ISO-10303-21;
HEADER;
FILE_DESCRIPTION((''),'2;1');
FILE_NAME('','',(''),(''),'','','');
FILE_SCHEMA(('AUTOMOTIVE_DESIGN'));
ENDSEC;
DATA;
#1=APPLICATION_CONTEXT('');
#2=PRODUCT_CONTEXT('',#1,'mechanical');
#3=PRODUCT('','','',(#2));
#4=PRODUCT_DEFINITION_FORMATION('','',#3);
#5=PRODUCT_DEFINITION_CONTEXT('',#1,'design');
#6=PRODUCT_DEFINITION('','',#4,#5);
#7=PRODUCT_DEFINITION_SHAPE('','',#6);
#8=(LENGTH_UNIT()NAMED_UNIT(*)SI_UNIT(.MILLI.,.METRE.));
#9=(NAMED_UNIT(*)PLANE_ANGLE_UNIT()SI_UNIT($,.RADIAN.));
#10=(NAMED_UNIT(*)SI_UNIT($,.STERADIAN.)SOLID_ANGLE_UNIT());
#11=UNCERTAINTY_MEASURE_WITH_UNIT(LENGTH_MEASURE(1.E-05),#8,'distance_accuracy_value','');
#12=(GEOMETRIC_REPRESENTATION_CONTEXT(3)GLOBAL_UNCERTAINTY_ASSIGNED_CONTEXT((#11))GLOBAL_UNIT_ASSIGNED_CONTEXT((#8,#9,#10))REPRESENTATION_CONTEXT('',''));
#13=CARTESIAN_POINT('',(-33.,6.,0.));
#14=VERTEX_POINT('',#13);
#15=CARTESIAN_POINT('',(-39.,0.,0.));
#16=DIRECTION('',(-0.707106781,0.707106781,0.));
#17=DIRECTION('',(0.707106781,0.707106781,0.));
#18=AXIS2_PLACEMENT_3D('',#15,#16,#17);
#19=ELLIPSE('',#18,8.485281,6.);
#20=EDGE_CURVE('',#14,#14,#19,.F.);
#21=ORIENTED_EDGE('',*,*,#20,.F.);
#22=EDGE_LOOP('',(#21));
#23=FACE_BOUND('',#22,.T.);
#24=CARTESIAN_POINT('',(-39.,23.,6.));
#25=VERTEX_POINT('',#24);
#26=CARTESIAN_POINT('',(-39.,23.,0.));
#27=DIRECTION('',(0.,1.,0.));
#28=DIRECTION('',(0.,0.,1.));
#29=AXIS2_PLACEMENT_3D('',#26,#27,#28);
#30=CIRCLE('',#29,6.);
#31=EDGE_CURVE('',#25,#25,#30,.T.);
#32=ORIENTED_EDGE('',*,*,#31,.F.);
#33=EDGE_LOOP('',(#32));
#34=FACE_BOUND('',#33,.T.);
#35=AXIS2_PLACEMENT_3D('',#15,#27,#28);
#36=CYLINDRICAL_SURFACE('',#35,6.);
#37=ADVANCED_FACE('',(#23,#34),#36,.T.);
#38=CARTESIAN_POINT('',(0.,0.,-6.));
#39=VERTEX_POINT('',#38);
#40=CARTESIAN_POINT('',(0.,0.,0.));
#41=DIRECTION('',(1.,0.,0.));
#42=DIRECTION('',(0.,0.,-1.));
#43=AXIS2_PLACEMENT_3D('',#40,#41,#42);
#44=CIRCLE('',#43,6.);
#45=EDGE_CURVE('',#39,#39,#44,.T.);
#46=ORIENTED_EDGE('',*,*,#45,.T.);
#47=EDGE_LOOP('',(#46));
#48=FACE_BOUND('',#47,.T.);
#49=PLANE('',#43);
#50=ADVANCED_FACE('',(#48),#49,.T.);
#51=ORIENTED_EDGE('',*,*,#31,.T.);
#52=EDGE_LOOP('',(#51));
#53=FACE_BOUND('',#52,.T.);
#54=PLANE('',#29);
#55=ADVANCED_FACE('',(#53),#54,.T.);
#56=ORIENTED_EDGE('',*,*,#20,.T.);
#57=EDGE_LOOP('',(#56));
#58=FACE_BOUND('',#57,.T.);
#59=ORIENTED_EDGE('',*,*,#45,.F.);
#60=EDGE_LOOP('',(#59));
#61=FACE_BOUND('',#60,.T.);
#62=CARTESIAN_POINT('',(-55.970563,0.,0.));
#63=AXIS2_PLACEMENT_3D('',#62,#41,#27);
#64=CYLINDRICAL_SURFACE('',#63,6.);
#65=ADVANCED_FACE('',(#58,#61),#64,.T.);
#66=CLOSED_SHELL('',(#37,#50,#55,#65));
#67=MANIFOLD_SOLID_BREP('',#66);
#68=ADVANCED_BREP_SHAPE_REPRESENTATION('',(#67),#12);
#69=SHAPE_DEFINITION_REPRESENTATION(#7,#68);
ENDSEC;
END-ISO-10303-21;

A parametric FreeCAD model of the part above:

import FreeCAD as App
import Part
import Sketcher

doc = App.newDocument("Part")
body = doc.addObject("PartDesign::Body", "Body")

# Sketch on YZ plane
sketch1 = body.newObject("Sketcher::SketchObject", "Sketch")
sketch1.AttachmentSupport = (doc.getObject("YZ_Plane"), [""])
sketch1.MapMode = "FlatFace"
sketch1.addGeometry(Part.Circle(App.Vector(0, 0, 0), App.Vector(0, 0, 1), 6), False)
sketch1.addConstraint(Sketcher.Constraint("Coincident", 0, 3, -1, 1))
sketch1.addConstraint(Sketcher.Constraint("Diameter", 0, 12.0))

# Sketch on XY plane
sketch2 = body.newObject("Sketcher::SketchObject", "Sketch001")
sketch2.AttachmentSupport = (doc.getObject("XY_Plane"), [""])
sketch2.MapMode = "FlatFace"
sketch2.addGeometry(Part.LineSegment(App.Vector(0, 0, 0), App.Vector(-39, 0, 0)), False)
sketch2.addGeometry(Part.LineSegment(App.Vector(-39, 0, 0), App.Vector(-39, 23, 0)), False)
sketch2.addConstraint(Sketcher.Constraint("Coincident", 0, 2, 1, 1))
sketch2.addConstraint(Sketcher.Constraint("Horizontal", 0))
sketch2.addConstraint(Sketcher.Constraint("Vertical", 1))
sketch2.addConstraint(Sketcher.Constraint("Coincident", 0, 1, -1, 1))
sketch2.addConstraint(Sketcher.Constraint("DistanceX", 0, 2, 0, 1, 39.0))
sketch2.addConstraint(Sketcher.Constraint("DistanceY", 1, 1, 1, 2, 23.0))
doc.recompute()

additivepipe = body.newObject("PartDesign::AdditivePipe", "AdditivePipe")
additivepipe.Profile = sketch1
additivepipe.Spine = (sketch2, ["Edge1", "Edge2"])
additivepipe.Transition = "Right corner"

doc.recompute()
